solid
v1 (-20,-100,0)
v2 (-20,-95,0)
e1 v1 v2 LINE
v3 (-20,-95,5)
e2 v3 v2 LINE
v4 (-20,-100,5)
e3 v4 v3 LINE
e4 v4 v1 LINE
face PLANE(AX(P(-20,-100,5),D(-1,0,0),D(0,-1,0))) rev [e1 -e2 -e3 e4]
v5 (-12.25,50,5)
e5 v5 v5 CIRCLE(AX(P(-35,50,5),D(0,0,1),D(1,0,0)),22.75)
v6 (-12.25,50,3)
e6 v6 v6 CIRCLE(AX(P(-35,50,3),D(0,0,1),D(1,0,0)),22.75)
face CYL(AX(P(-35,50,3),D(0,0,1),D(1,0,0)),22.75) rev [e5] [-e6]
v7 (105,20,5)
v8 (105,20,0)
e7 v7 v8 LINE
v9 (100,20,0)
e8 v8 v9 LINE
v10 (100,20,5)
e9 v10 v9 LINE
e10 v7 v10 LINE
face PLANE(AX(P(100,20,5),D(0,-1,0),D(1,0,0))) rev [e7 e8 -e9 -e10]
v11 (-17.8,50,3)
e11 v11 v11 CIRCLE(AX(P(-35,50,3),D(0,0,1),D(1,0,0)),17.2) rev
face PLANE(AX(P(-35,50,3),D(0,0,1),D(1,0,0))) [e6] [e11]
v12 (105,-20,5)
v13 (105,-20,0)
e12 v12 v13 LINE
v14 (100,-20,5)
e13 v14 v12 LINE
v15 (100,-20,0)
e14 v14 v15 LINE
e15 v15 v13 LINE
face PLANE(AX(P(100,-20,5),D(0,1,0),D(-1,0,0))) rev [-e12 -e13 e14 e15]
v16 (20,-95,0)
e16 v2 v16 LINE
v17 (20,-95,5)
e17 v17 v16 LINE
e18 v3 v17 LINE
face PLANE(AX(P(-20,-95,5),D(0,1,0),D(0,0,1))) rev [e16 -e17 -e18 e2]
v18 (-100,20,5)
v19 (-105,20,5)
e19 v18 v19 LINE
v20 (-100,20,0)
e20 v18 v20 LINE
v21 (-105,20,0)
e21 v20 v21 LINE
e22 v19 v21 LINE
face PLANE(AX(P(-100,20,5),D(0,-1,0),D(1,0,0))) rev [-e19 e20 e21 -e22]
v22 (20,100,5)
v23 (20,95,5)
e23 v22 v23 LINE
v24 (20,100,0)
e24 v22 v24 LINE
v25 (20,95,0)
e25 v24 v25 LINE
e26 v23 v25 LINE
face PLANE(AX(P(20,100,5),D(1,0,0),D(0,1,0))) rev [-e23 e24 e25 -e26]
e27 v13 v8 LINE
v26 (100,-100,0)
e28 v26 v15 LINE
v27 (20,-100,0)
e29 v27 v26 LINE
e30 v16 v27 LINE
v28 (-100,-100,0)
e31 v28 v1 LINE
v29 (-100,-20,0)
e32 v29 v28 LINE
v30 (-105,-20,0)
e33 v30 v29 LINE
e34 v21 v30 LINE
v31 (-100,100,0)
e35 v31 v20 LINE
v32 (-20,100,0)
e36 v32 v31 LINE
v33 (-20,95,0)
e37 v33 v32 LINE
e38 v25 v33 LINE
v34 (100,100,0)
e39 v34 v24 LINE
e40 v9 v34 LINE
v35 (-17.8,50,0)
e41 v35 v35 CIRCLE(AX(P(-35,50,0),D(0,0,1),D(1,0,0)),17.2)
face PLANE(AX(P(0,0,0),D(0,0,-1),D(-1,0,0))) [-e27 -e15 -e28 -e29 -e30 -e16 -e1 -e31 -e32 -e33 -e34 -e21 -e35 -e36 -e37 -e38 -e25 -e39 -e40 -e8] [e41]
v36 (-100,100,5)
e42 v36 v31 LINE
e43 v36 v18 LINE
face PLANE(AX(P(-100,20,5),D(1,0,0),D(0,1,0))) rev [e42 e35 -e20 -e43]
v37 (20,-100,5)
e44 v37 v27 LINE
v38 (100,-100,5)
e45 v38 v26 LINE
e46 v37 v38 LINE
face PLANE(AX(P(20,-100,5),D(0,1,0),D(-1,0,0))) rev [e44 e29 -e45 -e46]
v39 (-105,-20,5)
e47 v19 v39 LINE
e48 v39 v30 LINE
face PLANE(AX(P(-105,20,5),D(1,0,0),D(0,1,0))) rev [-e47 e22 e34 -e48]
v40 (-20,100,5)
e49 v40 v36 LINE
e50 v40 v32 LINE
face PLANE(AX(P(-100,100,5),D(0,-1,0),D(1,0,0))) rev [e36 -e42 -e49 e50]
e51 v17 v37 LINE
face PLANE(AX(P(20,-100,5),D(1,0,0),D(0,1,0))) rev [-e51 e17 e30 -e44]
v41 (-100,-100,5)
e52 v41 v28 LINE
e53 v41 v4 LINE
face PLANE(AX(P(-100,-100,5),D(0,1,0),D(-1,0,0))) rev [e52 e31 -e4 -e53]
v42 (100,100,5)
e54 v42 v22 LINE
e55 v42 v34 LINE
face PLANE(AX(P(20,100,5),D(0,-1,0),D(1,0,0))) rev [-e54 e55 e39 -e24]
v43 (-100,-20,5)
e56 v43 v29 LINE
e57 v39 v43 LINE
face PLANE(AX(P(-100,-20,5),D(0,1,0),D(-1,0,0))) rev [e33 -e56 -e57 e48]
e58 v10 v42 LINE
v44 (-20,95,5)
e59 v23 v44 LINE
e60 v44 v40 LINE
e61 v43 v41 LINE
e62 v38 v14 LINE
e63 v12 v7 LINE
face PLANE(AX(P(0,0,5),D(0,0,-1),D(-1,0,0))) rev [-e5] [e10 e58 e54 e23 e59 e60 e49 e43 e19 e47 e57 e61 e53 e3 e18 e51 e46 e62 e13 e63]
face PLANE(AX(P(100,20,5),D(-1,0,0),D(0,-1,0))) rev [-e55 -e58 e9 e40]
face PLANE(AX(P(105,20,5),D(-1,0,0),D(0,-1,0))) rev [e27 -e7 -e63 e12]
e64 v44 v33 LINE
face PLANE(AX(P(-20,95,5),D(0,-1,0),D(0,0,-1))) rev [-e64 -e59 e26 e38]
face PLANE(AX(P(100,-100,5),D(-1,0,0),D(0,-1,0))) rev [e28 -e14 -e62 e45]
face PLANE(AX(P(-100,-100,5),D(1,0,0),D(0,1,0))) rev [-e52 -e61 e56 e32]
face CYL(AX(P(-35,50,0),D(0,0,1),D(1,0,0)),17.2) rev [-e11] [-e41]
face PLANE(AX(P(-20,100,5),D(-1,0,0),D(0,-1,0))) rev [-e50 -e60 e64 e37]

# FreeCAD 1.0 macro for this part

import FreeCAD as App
import Part
import Sketcher
from FreeCAD import Vector
Q = App.Units.Quantity

doc = App.newDocument("Part")
body = doc.addObject("PartDesign::Body", "Body")

# Sketch on XY plane
sketch1 = body.newObject("Sketcher::SketchObject", "Sketch")
sketch1.AttachmentSupport = (doc.getObject("XY_Plane"), [""])
sketch1.MapMode = "FlatFace"
sketch1.addGeometry([
    Part.LineSegment(Vector(-100, -20, 0), Vector(-100, -100, 0)),  # 0
    Part.LineSegment(Vector(-100, -100, 0), Vector(-20, -100, 0)),  # 1
    Part.LineSegment(Vector(-20, -100, 0), Vector(-20, -95, 0)),  # 2
    Part.LineSegment(Vector(-20, -95, 0), Vector(20, -95, 0)),  # 3
    Part.LineSegment(Vector(20, -95, 0), Vector(20, -100, 0)),  # 4
    Part.LineSegment(Vector(20, -100, 0), Vector(100, -100, 0)),  # 5
    Part.LineSegment(Vector(100, -100, 0), Vector(100, -20, 0)),  # 6
    Part.LineSegment(Vector(100, -20, 0), Vector(105, -20, 0)),  # 7
    Part.LineSegment(Vector(105, -20, 0), Vector(105, 20, 0)),  # 8
    Part.LineSegment(Vector(105, 20, 0), Vector(100, 20, 0)),  # 9
    Part.LineSegment(Vector(100, 20, 0), Vector(100, 100, 0)),  # 10
    Part.LineSegment(Vector(100, 100, 0), Vector(20, 100, 0)),  # 11
    Part.LineSegment(Vector(20, 100, 0), Vector(20, 95, 0)),  # 12
    Part.LineSegment(Vector(20, 95, 0), Vector(-20, 95, 0)),  # 13
    Part.LineSegment(Vector(-20, 95, 0), Vector(-20, 100, 0)),  # 14
    Part.LineSegment(Vector(-20, 100, 0), Vector(-100, 100, 0)),  # 15
    Part.LineSegment(Vector(-100, 100, 0), Vector(-100, 20, 0)),  # 16
    Part.LineSegment(Vector(-100, 20, 0), Vector(-105, 20, 0)),  # 17
    Part.LineSegment(Vector(-105, 20, 0), Vector(-105, -20, 0)),  # 18
    Part.LineSegment(Vector(-105, -20, 0), Vector(-100, -20, 0)),  # 19
], False)
sketch1.addConstraint([
    Sketcher.Constraint("Coincident", 0, 2, 1, 1),
    Sketcher.Constraint("Coincident", 1, 2, 2, 1),
    Sketcher.Constraint("Coincident", 2, 2, 3, 1),
    Sketcher.Constraint("Coincident", 3, 2, 4, 1),
    Sketcher.Constraint("Coincident", 4, 2, 5, 1),
    Sketcher.Constraint("Coincident", 5, 2, 6, 1),
    Sketcher.Constraint("Coincident", 6, 2, 7, 1),
    Sketcher.Constraint("Coincident", 7, 2, 8, 1),
    Sketcher.Constraint("Coincident", 8, 2, 9, 1),
    Sketcher.Constraint("Coincident", 9, 2, 10, 1),
    Sketcher.Constraint("Coincident", 10, 2, 11, 1),
    Sketcher.Constraint("Coincident", 11, 2, 12, 1),
    Sketcher.Constraint("Coincident", 12, 2, 13, 1),
    Sketcher.Constraint("Coincident", 13, 2, 14, 1),
    Sketcher.Constraint("Coincident", 14, 2, 15, 1),
    Sketcher.Constraint("Coincident", 15, 2, 16, 1),
    Sketcher.Constraint("Coincident", 16, 2, 17, 1),
    Sketcher.Constraint("Coincident", 17, 2, 18, 1),
    Sketcher.Constraint("Coincident", 18, 2, 19, 1),
    Sketcher.Constraint("Coincident", 19, 2, 0, 1),
    Sketcher.Constraint("Vertical", 0),
    Sketcher.Constraint("Horizontal", 1),
    Sketcher.Constraint("Vertical", 2),
    Sketcher.Constraint("Horizontal", 3),
    Sketcher.Constraint("Vertical", 4),
    Sketcher.Constraint("Horizontal", 5),
    Sketcher.Constraint("Vertical", 6),
    Sketcher.Constraint("Horizontal", 7),
    Sketcher.Constraint("Vertical", 8),
    Sketcher.Constraint("Horizontal", 9),
    Sketcher.Constraint("Vertical", 10),
    Sketcher.Constraint("Horizontal", 11),
    Sketcher.Constraint("Vertical", 12),
    Sketcher.Constraint("Horizontal", 13),
    Sketcher.Constraint("Vertical", 14),
    Sketcher.Constraint("Horizontal", 15),
    Sketcher.Constraint("Vertical", 16),
    Sketcher.Constraint("Horizontal", 17),
    Sketcher.Constraint("Vertical", 18),
    Sketcher.Constraint("Horizontal", 19),
    Sketcher.Constraint("Symmetric", 0, 2, 10, 2, -1, 1),
    Sketcher.Constraint("Symmetric", 2, 2, 12, 2, -1, 1),
    Sketcher.Constraint("Symmetric", 4, 2, 14, 2, -1, 1),
    Sketcher.Constraint("Symmetric", 6, 2, 16, 2, -1, 1),
    Sketcher.Constraint("Symmetric", 8, 2, 18, 2, -1, 1),
    Sketcher.Constraint("Symmetric", 1, 2, 4, 2, -2),
    Sketcher.Constraint("Symmetric", 9, 2, 16, 2, -2),
    Sketcher.Constraint("Equal", 15, 0),
    Sketcher.Constraint("Equal", 19, 2),
    Sketcher.Constraint("Equal", 13, 8),
    Sketcher.Constraint("DistanceX", 1, 1, 1, 2, Q("80 mm")),
    Sketcher.Constraint("DistanceX", 3, 1, 3, 2, Q("40 mm")),
    Sketcher.Constraint("DistanceX", 7, 1, 7, 2, Q("5 mm")),
])
pad1 = body.newObject("PartDesign::Pad", "Pad")
pad1.Profile = sketch1
pad1.Length = 5

# Sketch on XY plane
sketch2 = body.newObject("Sketcher::SketchObject", "Sketch001")
sketch2.AttachmentSupport = (doc.getObject("XY_Plane"), [""])
sketch2.MapMode = "FlatFace"
sketch2.AttachmentOffset = App.Placement(Vector(0, 0, 5), App.Rotation())
sketch2.addGeometry(Part.Circle(Vector(-35, 50, 0), Vector(0, 0, 1), 17.2), False)
sketch2.addConstraint([
    Sketcher.Constraint("Diameter", 0, Q("34.4 mm")),
    Sketcher.Constraint("DistanceX", 0, 3, -1, 1, Q("35 mm")),
    Sketcher.Constraint("DistanceY", -1, 1, 0, 3, Q("50 mm")),
])
pocket1 = body.newObject("PartDesign::Pocket", "Pocket")
pocket1.Profile = sketch2
pocket1.Length = 5

# Sketch on XY plane
sketch3 = body.newObject("Sketcher::SketchObject", "Sketch002")
sketch3.AttachmentSupport = (doc.getObject("XY_Plane"), [""])
sketch3.MapMode = "FlatFace"
sketch3.AttachmentOffset = App.Placement(Vector(0, 0, 5), App.Rotation())
sketch3.addGeometry(Part.Circle(Vector(-35, 50, 0), Vector(0, 0, 1), 22.75), False)
sketch3.addConstraint([
    Sketcher.Constraint("Diameter", 0, Q("45.5 mm")),
    Sketcher.Constraint("DistanceX", 0, 3, -1, 1, Q("35 mm")),
    Sketcher.Constraint("DistanceY", -1, 1, 0, 3, Q("50 mm")),
])
pocket2 = body.newObject("PartDesign::Pocket", "Pocket001")
pocket2.Profile = sketch3
pocket2.Length = 2

doc.recompute()
